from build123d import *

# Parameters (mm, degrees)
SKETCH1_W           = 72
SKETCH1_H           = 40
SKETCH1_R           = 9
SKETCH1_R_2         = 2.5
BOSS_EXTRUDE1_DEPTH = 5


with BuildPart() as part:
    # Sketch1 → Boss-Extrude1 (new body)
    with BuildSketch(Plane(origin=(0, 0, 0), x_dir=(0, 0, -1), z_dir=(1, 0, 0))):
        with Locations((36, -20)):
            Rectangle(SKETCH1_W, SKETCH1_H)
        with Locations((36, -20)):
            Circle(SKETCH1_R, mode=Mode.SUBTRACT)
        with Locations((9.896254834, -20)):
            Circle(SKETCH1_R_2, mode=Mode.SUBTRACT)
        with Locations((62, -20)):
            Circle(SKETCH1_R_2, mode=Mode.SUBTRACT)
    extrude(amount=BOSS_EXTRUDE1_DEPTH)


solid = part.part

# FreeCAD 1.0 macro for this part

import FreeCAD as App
import Part
import Sketcher
Q = App.Units.Quantity


def add_polygon(sketch, points):
    """Adds a closed chain of lines whose ends are joined by coincident constraints."""
    first, n = sketch.GeometryCount, len(points)
    for a, b in zip(points, points[1:] + points[:1]):
        sketch.addGeometry(Part.LineSegment(App.Vector(*a, 0), App.Vector(*b, 0)), False)
    for i in range(n):
        sketch.addConstraint(Sketcher.Constraint("Coincident", first + i, 2, first + (i + 1) % n, 1))

doc = App.newDocument("Part")
body = doc.addObject("PartDesign::Body", "Body")

# Sketch on YZ plane
sketch1 = doc.addObject("Sketcher::SketchObject", "Sketch")
body.addObject(sketch1)
sketch1.AttachmentSupport = (doc.YZ_Plane, [""])
sketch1.MapMode = "FlatFace"
add_polygon(sketch1, [(0, 0), (-40, 0), (-40, -72), (0, -72)])  # lines 0-3
sketch1.addGeometry(Part.Circle(App.Vector(-20, -9.9, 0), App.Vector(0, 0, 1), 2.5), False)  # 4
sketch1.addGeometry(Part.Circle(App.Vector(-20, -36, 0), App.Vector(0, 0, 1), 9), False)  # 5
sketch1.addGeometry(Part.Circle(App.Vector(-20, -62, 0), App.Vector(0, 0, 1), 2.5), False)  # 6
sketch1.addConstraint(Sketcher.Constraint("Horizontal", 0))
sketch1.addConstraint(Sketcher.Constraint("Vertical", 1))
sketch1.addConstraint(Sketcher.Constraint("Horizontal", 2))
sketch1.addConstraint(Sketcher.Constraint("Vertical", 3))
sketch1.addConstraint(Sketcher.Constraint("Coincident", 3, 2, -1, 1))
sketch1.addConstraint(Sketcher.Constraint("Equal", 4, 6))
sketch1.addConstraint(Sketcher.Constraint("Vertical", 4, 3, 5, 3))
sketch1.addConstraint(Sketcher.Constraint("Vertical", 5, 3, 6, 3))
sketch1.addConstraint(Sketcher.Constraint("Diameter", 4, Q("5 mm")))
sketch1.addConstraint(Sketcher.Constraint("Diameter", 5, Q("18 mm")))
sketch1.addConstraint(Sketcher.Constraint("DistanceX", 0, 2, 0, 1, Q("40 mm")))
sketch1.addConstraint(Sketcher.Constraint("DistanceY", 1, 2, 1, 1, Q("72 mm")))
sketch1.addConstraint(Sketcher.Constraint("DistanceX", 4, 3, -1, 1, Q("20 mm")))
sketch1.addConstraint(Sketcher.Constraint("DistanceY", 5, 3, -1, 1, Q("36 mm")))
sketch1.addConstraint(Sketcher.Constraint("DistanceY", 6, 3, -1, 1, Q("62 mm")))
sketch1.addConstraint(Sketcher.Constraint("DistanceY", 4, 3, -1, 1, Q("9.896255 mm")))
pad1 = doc.addObject("PartDesign::Pad", "Pad")
body.addObject(pad1)
pad1.Profile = sketch1
pad1.Length = 5

doc.recompute()
